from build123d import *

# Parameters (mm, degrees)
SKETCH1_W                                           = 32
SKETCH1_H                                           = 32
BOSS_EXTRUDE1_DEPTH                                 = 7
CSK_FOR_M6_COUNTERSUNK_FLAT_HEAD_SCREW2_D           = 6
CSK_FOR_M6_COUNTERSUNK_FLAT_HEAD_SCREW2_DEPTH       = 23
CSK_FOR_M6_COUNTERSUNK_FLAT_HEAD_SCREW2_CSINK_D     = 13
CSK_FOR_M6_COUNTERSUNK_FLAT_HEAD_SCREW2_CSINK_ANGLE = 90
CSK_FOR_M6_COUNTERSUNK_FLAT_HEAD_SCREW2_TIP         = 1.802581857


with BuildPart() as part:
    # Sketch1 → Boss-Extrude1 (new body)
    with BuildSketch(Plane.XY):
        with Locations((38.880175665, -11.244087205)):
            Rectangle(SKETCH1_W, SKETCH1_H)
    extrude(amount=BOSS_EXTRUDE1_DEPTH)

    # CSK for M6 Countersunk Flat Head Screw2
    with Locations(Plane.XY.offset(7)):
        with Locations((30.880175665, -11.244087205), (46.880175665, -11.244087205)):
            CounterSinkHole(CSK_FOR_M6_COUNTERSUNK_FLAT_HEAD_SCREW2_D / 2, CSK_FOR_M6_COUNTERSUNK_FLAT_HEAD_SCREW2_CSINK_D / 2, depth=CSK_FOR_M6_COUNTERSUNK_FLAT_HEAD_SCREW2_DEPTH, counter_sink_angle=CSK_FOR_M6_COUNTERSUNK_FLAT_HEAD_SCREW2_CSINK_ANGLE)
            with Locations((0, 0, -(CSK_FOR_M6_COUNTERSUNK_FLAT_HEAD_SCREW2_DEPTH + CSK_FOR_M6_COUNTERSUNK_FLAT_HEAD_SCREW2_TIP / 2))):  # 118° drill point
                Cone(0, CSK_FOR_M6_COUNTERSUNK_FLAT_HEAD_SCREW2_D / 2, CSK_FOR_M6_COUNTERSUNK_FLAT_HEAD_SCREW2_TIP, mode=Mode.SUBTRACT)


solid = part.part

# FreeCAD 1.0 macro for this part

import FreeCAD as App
import Part
import Sketcher


def add_polygon(sketch, points):
    """Adds a closed chain of lines whose ends are joined by coincident constraints."""
    first, n = sketch.GeometryCount, len(points)
    for a, b in zip(points, points[1:] + points[:1]):
        sketch.addGeometry(Part.LineSegment(App.Vector(*a, 0), App.Vector(*b, 0)), False)
    for i in range(n):
        sketch.addConstraint(Sketcher.Constraint("Coincident", first + i, 2, first + (i + 1) % n, 1))

doc = App.newDocument("Part")
params = doc.addObject("Spreadsheet::Sheet", "Params")
for row, (alias, value) in enumerate([
    ("sketch1_width", "32 mm"),
    ("pad1_length", "7 mm"),
    ("sketch2_diameter", "6 mm"),
    ("hole_diameter", "6 mm"),
    ("hole_depth", "23 mm"),
    ("hole_csink_diameter", "13 mm"),
], start=1):
    params.set(f"A{row}", alias)
    params.set(f"B{row}", "=" + value)
    params.setAlias(f"B{row}", alias)

body = doc.addObject("PartDesign::Body", "Body")

# Sketch on XY plane
sketch1 = body.newObject("Sketcher::SketchObject", "Sketch")
sketch1.AttachmentSupport = (doc.getObject("XY_Plane"), [""])
sketch1.MapMode = "FlatFace"
add_polygon(sketch1, [(22.880176, 4.755913), (22.880176, -27.244087), (54.880176, -27.244087), (54.880176, 4.755913)])  # lines 0-3
sketch1.addConstraint([
    Sketcher.Constraint("Vertical", 0),
    Sketcher.Constraint("Horizontal", 1),
    Sketcher.Constraint("Vertical", 2),
    Sketcher.Constraint("Horizontal", 3),
    Sketcher.Constraint("Equal", 3, 0),
    Sketcher.Constraint("DistanceX", 1, 1, 1, 2, 32.0),
    Sketcher.Constraint("DistanceX", -1, 1, 0, 2, 22.880176),
    Sketcher.Constraint("DistanceY", 0, 2, -1, 1, 27.244087),
])
sketch1.setExpression("Constraints[9]", "Params.sketch1_width")
pad1 = body.newObject("PartDesign::Pad", "Pad")
pad1.Profile = sketch1
pad1.setExpression("Length", "Params.pad1_length")

# Sketch on XY plane
sketch2 = body.newObject("Sketcher::SketchObject", "Sketch001")
sketch2.AttachmentSupport = (doc.getObject("XY_Plane"), [""])
sketch2.MapMode = "FlatFace"
sketch2.AttachmentOffset = App.Placement(App.Vector(0, 0, 7), App.Rotation())
sketch2.addGeometry([
    Part.Circle(App.Vector(30.880176, -11.244087, 0), App.Vector(0, 0, 1), 3),
    Part.Circle(App.Vector(46.880176, -11.244087, 0), App.Vector(0, 0, 1), 3),
], False)
sketch2.addConstraint([
    Sketcher.Constraint("Equal", 0, 1),
    Sketcher.Constraint("Horizontal", 0, 3, 1, 3),
    Sketcher.Constraint("Diameter", 0, 6.0),
    Sketcher.Constraint("DistanceX", 0, 3, 1, 3, 16.0),
    Sketcher.Constraint("DistanceX", -1, 1, 0, 3, 30.880176),
    Sketcher.Constraint("DistanceY", 0, 3, -1, 1, 11.244087),
])
sketch2.setExpression("Constraints[2]", "Params.sketch2_diameter")
doc.recompute()
hole = body.newObject("PartDesign::Hole", "Hole")
hole.Profile = sketch2
hole.ThreadType = "None"
hole.setExpression("Diameter", "Params.hole_diameter")
hole.DepthType = "Dimension"
hole.setExpression("Depth", "Params.hole_depth")
hole.DrillPoint = "Angled"
hole.DrillPointAngle = 118
hole.HoleCutType = "Countersink"
hole.setExpression("HoleCutDiameter", "Params.hole_csink_diameter")
hole.HoleCutCountersinkAngle = 90

doc.recompute()
